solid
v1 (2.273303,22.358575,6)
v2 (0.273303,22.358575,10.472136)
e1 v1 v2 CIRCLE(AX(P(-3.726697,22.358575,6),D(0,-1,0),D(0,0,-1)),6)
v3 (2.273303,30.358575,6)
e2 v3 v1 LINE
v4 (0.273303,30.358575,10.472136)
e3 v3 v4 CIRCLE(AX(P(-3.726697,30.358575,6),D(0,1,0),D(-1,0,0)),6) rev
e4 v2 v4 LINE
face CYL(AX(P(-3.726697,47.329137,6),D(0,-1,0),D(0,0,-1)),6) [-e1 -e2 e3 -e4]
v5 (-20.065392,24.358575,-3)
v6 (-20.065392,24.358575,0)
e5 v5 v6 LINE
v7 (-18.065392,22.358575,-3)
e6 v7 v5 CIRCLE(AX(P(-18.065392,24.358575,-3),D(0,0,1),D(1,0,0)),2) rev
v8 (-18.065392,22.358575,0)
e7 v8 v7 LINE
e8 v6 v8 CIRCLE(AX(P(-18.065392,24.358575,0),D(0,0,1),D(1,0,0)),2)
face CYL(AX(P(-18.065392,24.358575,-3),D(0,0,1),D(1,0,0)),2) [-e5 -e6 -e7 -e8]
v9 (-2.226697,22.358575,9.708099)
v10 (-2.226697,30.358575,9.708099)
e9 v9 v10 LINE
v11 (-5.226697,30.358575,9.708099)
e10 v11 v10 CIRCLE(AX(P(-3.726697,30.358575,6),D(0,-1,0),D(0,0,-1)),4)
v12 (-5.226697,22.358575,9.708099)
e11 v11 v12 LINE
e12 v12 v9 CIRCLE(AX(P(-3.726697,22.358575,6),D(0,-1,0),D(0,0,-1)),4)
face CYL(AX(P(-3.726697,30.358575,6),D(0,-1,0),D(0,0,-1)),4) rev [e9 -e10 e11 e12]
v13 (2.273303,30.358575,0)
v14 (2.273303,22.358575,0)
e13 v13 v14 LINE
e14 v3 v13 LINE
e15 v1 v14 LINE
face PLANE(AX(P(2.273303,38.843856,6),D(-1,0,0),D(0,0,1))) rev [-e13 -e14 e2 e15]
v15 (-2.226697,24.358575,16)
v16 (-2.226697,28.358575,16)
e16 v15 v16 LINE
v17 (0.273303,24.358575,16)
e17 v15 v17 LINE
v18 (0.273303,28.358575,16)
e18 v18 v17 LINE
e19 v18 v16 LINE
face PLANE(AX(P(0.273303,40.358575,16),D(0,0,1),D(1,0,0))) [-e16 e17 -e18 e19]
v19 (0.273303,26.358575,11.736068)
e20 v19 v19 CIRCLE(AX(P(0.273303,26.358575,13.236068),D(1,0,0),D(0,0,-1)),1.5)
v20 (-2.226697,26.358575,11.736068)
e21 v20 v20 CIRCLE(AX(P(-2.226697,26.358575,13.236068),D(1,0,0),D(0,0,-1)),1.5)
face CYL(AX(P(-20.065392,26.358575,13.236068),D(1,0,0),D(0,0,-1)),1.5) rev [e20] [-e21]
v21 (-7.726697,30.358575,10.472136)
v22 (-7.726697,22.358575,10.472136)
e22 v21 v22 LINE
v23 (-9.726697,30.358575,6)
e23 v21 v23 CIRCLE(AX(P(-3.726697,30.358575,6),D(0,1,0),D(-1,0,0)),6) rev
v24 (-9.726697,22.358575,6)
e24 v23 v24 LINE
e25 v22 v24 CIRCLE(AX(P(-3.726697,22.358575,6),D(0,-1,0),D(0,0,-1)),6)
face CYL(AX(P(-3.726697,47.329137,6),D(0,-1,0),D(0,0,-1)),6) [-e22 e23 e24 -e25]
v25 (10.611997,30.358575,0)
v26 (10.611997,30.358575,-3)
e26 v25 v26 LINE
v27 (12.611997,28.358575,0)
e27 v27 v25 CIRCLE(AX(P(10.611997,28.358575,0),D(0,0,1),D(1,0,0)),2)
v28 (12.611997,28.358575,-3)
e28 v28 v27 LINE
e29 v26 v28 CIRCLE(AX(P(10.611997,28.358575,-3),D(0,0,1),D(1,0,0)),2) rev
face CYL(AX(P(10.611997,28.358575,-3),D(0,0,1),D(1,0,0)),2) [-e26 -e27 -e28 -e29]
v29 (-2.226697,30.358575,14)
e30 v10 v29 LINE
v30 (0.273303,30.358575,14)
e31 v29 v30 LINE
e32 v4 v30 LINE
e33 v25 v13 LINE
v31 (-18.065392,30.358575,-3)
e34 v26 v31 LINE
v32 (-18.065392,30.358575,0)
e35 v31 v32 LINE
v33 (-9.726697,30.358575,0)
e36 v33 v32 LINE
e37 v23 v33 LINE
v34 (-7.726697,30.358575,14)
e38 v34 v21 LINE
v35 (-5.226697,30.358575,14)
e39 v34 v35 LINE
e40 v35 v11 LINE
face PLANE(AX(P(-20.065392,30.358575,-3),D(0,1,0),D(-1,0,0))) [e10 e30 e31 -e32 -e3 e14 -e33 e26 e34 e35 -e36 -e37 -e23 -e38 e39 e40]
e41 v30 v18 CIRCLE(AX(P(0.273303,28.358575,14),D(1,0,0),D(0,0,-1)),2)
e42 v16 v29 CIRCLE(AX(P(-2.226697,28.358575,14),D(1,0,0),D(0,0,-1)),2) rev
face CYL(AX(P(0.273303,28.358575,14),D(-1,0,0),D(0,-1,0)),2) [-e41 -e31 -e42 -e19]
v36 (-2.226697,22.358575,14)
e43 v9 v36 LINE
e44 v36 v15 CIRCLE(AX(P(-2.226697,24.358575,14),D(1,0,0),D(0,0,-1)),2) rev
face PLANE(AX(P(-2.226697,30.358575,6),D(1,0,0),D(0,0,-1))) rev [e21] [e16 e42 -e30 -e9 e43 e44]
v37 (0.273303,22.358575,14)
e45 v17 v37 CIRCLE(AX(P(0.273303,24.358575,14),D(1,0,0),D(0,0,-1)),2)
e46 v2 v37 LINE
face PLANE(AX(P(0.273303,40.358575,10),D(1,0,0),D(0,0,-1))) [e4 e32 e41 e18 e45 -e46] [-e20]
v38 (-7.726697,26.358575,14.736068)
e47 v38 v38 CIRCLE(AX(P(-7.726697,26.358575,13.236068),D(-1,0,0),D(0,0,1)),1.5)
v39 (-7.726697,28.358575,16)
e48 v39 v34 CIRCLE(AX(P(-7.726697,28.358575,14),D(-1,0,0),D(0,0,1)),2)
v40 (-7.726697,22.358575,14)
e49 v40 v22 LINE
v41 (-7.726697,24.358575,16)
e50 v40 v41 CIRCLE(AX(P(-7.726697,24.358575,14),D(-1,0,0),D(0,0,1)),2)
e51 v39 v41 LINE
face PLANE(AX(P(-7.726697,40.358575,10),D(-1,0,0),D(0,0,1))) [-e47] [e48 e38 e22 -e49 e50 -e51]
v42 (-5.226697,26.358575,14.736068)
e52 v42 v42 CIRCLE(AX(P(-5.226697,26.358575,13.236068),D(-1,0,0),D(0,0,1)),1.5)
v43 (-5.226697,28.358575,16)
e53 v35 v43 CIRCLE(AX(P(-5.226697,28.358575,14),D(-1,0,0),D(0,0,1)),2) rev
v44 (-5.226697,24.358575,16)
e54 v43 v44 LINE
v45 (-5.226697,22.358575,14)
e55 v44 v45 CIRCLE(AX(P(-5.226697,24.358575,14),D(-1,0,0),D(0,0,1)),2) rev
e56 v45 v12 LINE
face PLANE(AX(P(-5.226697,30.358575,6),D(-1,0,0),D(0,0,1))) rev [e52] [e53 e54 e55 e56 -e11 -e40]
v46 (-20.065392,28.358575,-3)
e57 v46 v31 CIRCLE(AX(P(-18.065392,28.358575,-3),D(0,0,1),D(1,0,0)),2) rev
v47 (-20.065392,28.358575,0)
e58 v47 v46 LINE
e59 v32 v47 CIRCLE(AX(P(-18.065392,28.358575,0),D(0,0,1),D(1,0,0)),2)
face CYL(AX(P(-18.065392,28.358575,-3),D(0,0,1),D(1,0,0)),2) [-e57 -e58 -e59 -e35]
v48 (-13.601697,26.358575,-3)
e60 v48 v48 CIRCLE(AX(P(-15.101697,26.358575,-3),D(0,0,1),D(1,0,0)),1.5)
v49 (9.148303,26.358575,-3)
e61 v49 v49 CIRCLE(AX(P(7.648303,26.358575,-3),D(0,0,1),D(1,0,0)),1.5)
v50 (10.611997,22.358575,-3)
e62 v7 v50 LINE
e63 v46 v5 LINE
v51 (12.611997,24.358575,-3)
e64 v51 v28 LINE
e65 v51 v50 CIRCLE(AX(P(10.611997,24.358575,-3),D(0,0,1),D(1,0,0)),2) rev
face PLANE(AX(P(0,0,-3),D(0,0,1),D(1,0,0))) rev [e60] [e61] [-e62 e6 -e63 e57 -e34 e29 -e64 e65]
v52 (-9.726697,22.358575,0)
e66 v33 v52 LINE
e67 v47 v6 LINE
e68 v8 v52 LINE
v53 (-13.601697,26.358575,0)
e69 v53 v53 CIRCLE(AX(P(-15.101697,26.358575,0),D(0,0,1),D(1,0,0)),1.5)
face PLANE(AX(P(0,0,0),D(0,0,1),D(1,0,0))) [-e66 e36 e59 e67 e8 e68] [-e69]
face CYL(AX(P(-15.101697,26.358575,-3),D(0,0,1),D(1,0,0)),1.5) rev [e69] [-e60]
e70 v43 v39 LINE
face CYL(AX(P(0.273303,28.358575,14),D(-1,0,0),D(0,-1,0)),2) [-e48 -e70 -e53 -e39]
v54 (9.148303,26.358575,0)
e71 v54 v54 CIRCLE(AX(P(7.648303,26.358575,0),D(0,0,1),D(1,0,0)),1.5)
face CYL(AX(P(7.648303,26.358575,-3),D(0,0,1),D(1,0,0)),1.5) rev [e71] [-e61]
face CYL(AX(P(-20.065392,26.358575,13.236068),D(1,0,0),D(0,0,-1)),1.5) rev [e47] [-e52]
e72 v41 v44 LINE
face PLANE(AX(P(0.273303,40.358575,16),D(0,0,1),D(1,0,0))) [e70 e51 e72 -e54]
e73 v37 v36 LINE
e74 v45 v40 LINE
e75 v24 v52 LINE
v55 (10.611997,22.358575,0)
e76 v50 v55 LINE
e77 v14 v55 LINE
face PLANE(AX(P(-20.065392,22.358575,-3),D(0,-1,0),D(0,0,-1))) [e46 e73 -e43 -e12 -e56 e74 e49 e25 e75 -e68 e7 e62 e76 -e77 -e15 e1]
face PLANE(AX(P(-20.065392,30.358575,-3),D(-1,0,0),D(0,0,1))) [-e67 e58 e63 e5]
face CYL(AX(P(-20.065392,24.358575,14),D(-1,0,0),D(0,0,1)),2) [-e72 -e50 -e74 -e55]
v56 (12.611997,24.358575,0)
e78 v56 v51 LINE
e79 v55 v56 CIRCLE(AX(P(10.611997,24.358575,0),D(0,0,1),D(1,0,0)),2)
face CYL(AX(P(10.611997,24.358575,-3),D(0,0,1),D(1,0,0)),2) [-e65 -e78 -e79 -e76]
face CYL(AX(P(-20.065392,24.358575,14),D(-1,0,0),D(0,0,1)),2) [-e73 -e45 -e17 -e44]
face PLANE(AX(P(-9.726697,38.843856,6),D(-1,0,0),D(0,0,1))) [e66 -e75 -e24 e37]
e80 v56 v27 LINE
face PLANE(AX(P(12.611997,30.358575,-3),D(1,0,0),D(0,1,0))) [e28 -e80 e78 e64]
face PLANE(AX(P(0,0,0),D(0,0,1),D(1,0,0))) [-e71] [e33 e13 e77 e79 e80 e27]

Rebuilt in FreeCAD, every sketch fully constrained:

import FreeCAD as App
import Part
import Sketcher


def edges_at(feature, points):
    """Names of the edges that pass closest to the given points."""
    edges = feature.Shape.Edges
    near = lambda p: min(range(len(edges)), key=lambda i: edges[i].distToShape(Part.Vertex(*p))[0])
    return sorted({f"Edge{near(p) + 1}" for p in points})

doc = App.newDocument("Part")
body = doc.addObject("PartDesign::Body", "Body")

sketch1 = body.newObject("Sketcher::SketchObject", "Sketch")
sketch1.AttachmentSupport = (doc.getObject("XY_Plane"), [""])
sketch1.MapMode = "FlatFace"
sketch1.addGeometry([
    Part.LineSegment(App.Vector(-20, 30, 0), App.Vector(-20, 22, 0)),
    Part.LineSegment(App.Vector(-20, 22, 0), App.Vector(13, 22, 0)),
    Part.LineSegment(App.Vector(13, 22, 0), App.Vector(13, 30, 0)),
    Part.LineSegment(App.Vector(13, 30, 0), App.Vector(-20, 30, 0)),
], False)
sketch1.addConstraint([
    Sketcher.Constraint("Coincident", 0, 2, 1, 1),
    Sketcher.Constraint("Coincident", 1, 2, 2, 1),
    Sketcher.Constraint("Coincident", 2, 2, 3, 1),
    Sketcher.Constraint("Coincident", 3, 2, 0, 1),
    Sketcher.Constraint("Vertical", 0),
    Sketcher.Constraint("Horizontal", 1),
    Sketcher.Constraint("Vertical", 2),
    Sketcher.Constraint("Horizontal", 3),
    Sketcher.Constraint("DistanceY", 0, 2, 0, 1, 8.0),
    Sketcher.Constraint("DistanceX", 1, 1, 1, 2, 32.677388),
    Sketcher.Constraint("DistanceX", 0, 2, -1, 1, 20.065392),
    Sketcher.Constraint("DistanceY", -1, 1, 0, 2, 22.358575),
])
pad1 = body.newObject("PartDesign::Pad", "Pad")
pad1.Profile = sketch1
pad1.Length = 3
pad1.Reversed = True

sketch2 = body.newObject("Sketcher::SketchObject", "Sketch001")
sketch2.AttachmentSupport = (doc.getObject("XY_Plane"), [""])
sketch2.MapMode = "FlatFace"
sketch2.addGeometry([
    Part.Circle(App.Vector(-15.1, 26.4, 0), App.Vector(0, 0, 1), 1.5),
    Part.Circle(App.Vector(7.6, 26.4, 0), App.Vector(0, 0, 1), 1.5),
], False)
sketch2.addConstraint([
    Sketcher.Constraint("Equal", 0, 1),
    Sketcher.Constraint("Horizontal", 0, 3, 1, 3),
    Sketcher.Constraint("Diameter", 0, 3.0),
    Sketcher.Constraint("DistanceX", 0, 3, 1, 3, 22.75),
    Sketcher.Constraint("DistanceX", 0, 3, -1, 1, 15.101697),
    Sketcher.Constraint("DistanceY", -1, 1, 0, 3, 26.358575),
])
pocket1 = body.newObject("PartDesign::Pocket", "Pocket")
pocket1.Profile = sketch2
pocket1.Type = "ThroughAll"
body2 = doc.addObject("PartDesign::Body", "Body001")

sketch3 = body2.newObject("Sketcher::SketchObject", "Sketch002")
sketch3.AttachmentSupport = (doc.getObject("XZ_Plane001"), [""])
sketch3.MapMode = "FlatFace"
sketch3.AttachmentOffset = App.Placement(App.Vector(0, 0, -22.358575), App.Rotation())
sketch3.addGeometry(Part.Circle(App.Vector(-4, 6, 0), App.Vector(0, 0, 1), 6), False)
sketch3.addConstraint([
    Sketcher.Constraint("Diameter", 0, 12.0),
    Sketcher.Constraint("DistanceY", -1, 1, 0, 3, 6.0),
    Sketcher.Constraint("DistanceX", 0, 3, -1, 1, 3.726697),
])
pad2 = body2.newObject("PartDesign::Pad", "Pad001")
pad2.Profile = sketch3
pad2.Length = 8
pad2.Reversed = True

sketch4 = body2.newObject("Sketcher::SketchObject", "Sketch003")
sketch4.AttachmentSupport = (doc.getObject("XZ_Plane001"), [""])
sketch4.MapMode = "FlatFace"
sketch4.AttachmentOffset = App.Placement(App.Vector(0, 0, -22.358575), App.Rotation())
sketch4.addGeometry(Part.Circle(App.Vector(-3.7, 6, 0), App.Vector(0, 0, 1), 4), False)
sketch4.addConstraint([
    Sketcher.Constraint("Diameter", 0, 8.0),
    Sketcher.Constraint("DistanceY", -1, 1, 0, 3, 6.0),
    Sketcher.Constraint("DistanceX", 0, 3, -1, 1, 3.726697),
])
pocket2 = body2.newObject("PartDesign::Pocket", "Pocket001")
pocket2.Profile = sketch4
pocket2.Type = "ThroughAll"
body.AllowCompound = True
doc.recompute()

boolean = body.newObject("PartDesign::Boolean", "Boolean")
boolean.Type = "Fuse"
boolean.addObjects([body2])

sketch5 = body.newObject("Sketcher::SketchObject", "Sketch004")
sketch5.AttachmentSupport = (doc.getObject("XZ_Plane"), [""])
sketch5.MapMode = "FlatFace"
sketch5.AttachmentOffset = App.Placement(App.Vector(0, 0, -22.358575), App.Rotation())
sketch5.addGeometry([
    Part.LineSegment(App.Vector(-4, 0, 0), App.Vector(-10, 6, 0)),
    Part.LineSegment(App.Vector(-10, 6, 0), App.Vector(-10, 0, 0)),
    Part.LineSegment(App.Vector(-10, 0, 0), App.Vector(-4, 0, 0)),
    Part.LineSegment(App.Vector(2, 6, 0), App.Vector(-4, 0, 0)),
    Part.LineSegment(App.Vector(-4, 0, 0), App.Vector(2, 0, 0)),
    Part.LineSegment(App.Vector(2, 0, 0), App.Vector(2, 6, 0)),
], False)
sketch5.addConstraint([
    Sketcher.Constraint("Coincident", 0, 2, 1, 1),
    Sketcher.Constraint("Coincident", 1, 2, 2, 1),
    Sketcher.Constraint("Coincident", 2, 2, 0, 1),
    Sketcher.Constraint("Coincident", 3, 2, 4, 1),
    Sketcher.Constraint("Coincident", 4, 2, 5, 1),
    Sketcher.Constraint("Coincident", 5, 2, 3, 1),
    Sketcher.Constraint("Vertical", 1),
    Sketcher.Constraint("Horizontal", 2),
    Sketcher.Constraint("Horizontal", 4),
    Sketcher.Constraint("Vertical", 5),
    Sketcher.Constraint("Coincident", 3, 2, 2, 2),
    Sketcher.Constraint("PointOnObject", 1, 2, -1),
    Sketcher.Constraint("Perpendicular", 0, 3),
    Sketcher.Constraint("Horizontal", 0, 2, 5, 2),
    Sketcher.Constraint("Equal", 2, 4),
    Sketcher.Constraint("DistanceX", 2, 1, 2, 2, 6.0),
    Sketcher.Constraint("DistanceX", 0, 2, -1, 1, 9.726697),
])
pad3 = body.newObject("PartDesign::Pad", "Pad002")
pad3.Profile = sketch5
pad3.Length = 8
pad3.Reversed = True

sketch6 = body.newObject("Sketcher::SketchObject", "Sketch005")
sketch6.AttachmentSupport = (doc.getObject("XZ_Plane"), [""])
sketch6.MapMode = "FlatFace"
sketch6.AttachmentOffset = App.Placement(App.Vector(0, 0, -22.358575), App.Rotation())
sketch6.addGeometry([
    Part.LineSegment(App.Vector(-8, 16, 0), App.Vector(-8, 10, 0)),
    Part.LineSegment(App.Vector(-8, 10, 0), App.Vector(0, 10, 0)),
    Part.LineSegment(App.Vector(0, 10, 0), App.Vector(0, 16, 0)),
    Part.LineSegment(App.Vector(0, 16, 0), App.Vector(-8, 16, 0)),
], False)
sketch6.addConstraint([
    Sketcher.Constraint("Coincident", 0, 2, 1, 1),
    Sketcher.Constraint("Coincident", 1, 2, 2, 1),
    Sketcher.Constraint("Coincident", 2, 2, 3, 1),
    Sketcher.Constraint("Coincident", 3, 2, 0, 1),
    Sketcher.Constraint("Vertical", 0),
    Sketcher.Constraint("Horizontal", 1),
    Sketcher.Constraint("Vertical", 2),
    Sketcher.Constraint("Horizontal", 3),
    Sketcher.Constraint("DistanceX", 1, 1, 1, 2, 8.0),
    Sketcher.Constraint("DistanceY", 0, 2, 0, 1, 6.0),
    Sketcher.Constraint("DistanceY", -1, 1, 0, 2, 10.0),
    Sketcher.Constraint("DistanceX", 0, 2, -1, 1, 7.726697),
])
pad4 = body.newObject("PartDesign::Pad", "Pad003")
pad4.Profile = sketch6
pad4.Length = 8
pad4.Reversed = True

sketch7 = body.newObject("Sketcher::SketchObject", "Sketch006")
sketch7.AttachmentSupport = (doc.getObject("XZ_Plane"), [""])
sketch7.MapMode = "FlatFace"
sketch7.AttachmentOffset = App.Placement(App.Vector(0, 0, -22.358575), App.Rotation())
sketch7.addGeometry([
    Part.LineSegment(App.Vector(-5.2, 16.5, 0), App.Vector(-5.2, 6, 0)),
    Part.LineSegment(App.Vector(-5.2, 6, 0), App.Vector(-2.2, 6, 0)),
    Part.LineSegment(App.Vector(-2.2, 6, 0), App.Vector(-2.2, 16.5, 0)),
    Part.LineSegment(App.Vector(-2.2, 16.5, 0), App.Vector(-5.2, 16.5, 0)),
], False)
sketch7.addConstraint([
    Sketcher.Constraint("Coincident", 0, 2, 1, 1),
    Sketcher.Constraint("Coincident", 1, 2, 2, 1),
    Sketcher.Constraint("Coincident", 2, 2, 3, 1),
    Sketcher.Constraint("Coincident", 3, 2, 0, 1),
    Sketcher.Constraint("Vertical", 0),
    Sketcher.Constraint("Horizontal", 1),
    Sketcher.Constraint("Vertical", 2),
    Sketcher.Constraint("Horizontal", 3),
    Sketcher.Constraint("DistanceX", 1, 1, 1, 2, 3.0),
    Sketcher.Constraint("DistanceY", -1, 1, 0, 2, 6.0),
    Sketcher.Constraint("DistanceY", 0, 2, 0, 1, 10.466634),
    Sketcher.Constraint("DistanceX", 0, 2, -1, 1, 5.226697),
])
pocket3 = body.newObject("PartDesign::Pocket", "Pocket002")
pocket3.Profile = sketch7
pocket3.Type = "ThroughAll"

sketch8 = body.newObject("Sketcher::SketchObject", "Sketch007")
sketch8.AttachmentSupport = (doc.getObject("YZ_Plane"), [""])
sketch8.MapMode = "FlatFace"
sketch8.AttachmentOffset = App.Placement(App.Vector(0, 0, 0.273303), App.Rotation())
sketch8.addGeometry(Part.Circle(App.Vector(26.4, 13.2, 0), App.Vector(0, 0, 1), 1.5), False)
sketch8.addConstraint([
    Sketcher.Constraint("Diameter", 0, 3.0),
    Sketcher.Constraint("DistanceX", -1, 1, 0, 3, 26.358575),
    Sketcher.Constraint("DistanceY", -1, 1, 0, 3, 13.236068),
])
pocket4 = body.newObject("PartDesign::Pocket", "Pocket003")
pocket4.Profile = sketch8
pocket4.Type = "ThroughAll"
doc.recompute()

fillet = body.newObject("PartDesign::Fillet", "Fillet")
fillet.Base = (pocket4, edges_at(pocket4, [
    (12.612, 22.359, -1.5),
    (-20.065, 22.359, -1.5),
    (-20.065, 30.359, -1.5),
    (12.612, 30.359, -1.5),
]))
fillet.Radius = 2
doc.recompute()

fillet2 = body.newObject("PartDesign::Fillet", "Fillet001")
fillet2.Base = (fillet, edges_at(fillet, [
    (-0.977, 22.359, 16),
    (-0.977, 30.359, 16),
    (-6.477, 30.359, 16),
    (-6.477, 22.359, 16),
]))
fillet2.Radius = 2

doc.recompute()
